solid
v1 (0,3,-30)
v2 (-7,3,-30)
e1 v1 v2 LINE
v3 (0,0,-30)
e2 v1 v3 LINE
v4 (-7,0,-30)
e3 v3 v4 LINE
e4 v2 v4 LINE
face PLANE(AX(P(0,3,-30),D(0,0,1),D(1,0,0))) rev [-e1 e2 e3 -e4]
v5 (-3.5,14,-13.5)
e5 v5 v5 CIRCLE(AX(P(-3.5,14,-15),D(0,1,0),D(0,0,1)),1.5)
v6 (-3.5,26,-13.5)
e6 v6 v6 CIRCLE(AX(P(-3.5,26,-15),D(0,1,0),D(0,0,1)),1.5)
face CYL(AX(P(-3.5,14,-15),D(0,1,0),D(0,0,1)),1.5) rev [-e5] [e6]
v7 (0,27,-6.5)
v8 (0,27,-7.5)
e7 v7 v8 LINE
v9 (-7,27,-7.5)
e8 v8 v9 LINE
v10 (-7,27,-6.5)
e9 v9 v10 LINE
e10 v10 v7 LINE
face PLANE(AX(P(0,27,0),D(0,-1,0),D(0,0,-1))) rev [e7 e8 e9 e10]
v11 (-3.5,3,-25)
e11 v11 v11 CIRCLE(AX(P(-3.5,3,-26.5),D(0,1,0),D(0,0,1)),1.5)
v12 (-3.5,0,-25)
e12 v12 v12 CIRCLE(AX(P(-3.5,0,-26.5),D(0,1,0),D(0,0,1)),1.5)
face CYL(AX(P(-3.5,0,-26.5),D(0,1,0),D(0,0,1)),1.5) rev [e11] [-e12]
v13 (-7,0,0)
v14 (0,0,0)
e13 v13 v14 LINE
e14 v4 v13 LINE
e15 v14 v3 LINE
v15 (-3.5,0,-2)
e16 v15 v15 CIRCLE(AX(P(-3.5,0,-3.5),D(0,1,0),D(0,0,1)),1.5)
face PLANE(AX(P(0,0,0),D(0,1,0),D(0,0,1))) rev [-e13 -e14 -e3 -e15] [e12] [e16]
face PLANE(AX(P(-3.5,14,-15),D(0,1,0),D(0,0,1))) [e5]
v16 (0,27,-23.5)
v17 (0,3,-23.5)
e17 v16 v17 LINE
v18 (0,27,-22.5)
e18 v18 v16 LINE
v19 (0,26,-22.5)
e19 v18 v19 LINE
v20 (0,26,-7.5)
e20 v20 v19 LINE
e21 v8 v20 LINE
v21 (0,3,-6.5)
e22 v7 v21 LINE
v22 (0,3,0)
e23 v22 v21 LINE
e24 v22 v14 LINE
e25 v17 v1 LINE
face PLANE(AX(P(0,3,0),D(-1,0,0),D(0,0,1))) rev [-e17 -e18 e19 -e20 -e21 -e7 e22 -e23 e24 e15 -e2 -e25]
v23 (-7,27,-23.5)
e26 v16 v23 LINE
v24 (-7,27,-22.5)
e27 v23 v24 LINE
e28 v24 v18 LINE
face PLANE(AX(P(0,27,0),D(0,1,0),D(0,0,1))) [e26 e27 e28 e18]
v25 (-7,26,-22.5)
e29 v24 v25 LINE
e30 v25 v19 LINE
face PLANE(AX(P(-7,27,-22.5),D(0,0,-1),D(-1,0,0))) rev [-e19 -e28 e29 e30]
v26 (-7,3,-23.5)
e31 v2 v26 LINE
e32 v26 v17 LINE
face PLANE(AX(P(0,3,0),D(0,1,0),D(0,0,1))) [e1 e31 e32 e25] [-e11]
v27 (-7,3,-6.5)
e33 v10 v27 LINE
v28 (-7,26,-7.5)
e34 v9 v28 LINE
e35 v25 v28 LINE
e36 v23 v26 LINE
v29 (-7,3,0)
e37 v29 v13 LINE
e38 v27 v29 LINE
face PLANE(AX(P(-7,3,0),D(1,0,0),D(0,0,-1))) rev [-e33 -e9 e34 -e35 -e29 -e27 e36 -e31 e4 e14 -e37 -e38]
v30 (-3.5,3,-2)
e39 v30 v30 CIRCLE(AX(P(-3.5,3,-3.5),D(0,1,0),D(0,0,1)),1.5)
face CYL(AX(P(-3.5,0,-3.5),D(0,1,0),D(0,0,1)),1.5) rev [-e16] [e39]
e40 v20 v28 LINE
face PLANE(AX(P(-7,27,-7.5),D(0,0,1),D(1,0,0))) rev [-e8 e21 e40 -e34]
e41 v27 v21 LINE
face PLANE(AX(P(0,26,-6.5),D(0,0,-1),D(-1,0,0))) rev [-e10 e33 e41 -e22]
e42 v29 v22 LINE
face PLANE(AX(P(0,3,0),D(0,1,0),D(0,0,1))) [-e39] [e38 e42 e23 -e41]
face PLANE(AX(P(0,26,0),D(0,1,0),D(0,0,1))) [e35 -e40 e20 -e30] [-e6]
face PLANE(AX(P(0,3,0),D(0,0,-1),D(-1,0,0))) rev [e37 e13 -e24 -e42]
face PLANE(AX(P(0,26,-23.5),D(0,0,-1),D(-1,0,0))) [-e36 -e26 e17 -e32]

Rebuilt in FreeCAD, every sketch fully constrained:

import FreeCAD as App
import Part
import Sketcher

doc = App.newDocument("Part")
params = doc.addObject("Spreadsheet::Sheet", "Params")
for row, (alias, value) in enumerate([
    ("sketch1_width", "7 mm"),
    ("sketch1_height", "30 mm"),
    ("pad1_length", "3 mm"),
    ("sketch2_diameter", "3 mm"),
    ("pocket1_length", "3 mm"),
    ("sketch3_width", "7 mm"),
    ("sketch3_height", "17 mm"),
    ("pad2_length", "23 mm"),
    ("sketch4_diameter", "3 mm"),
    ("pocket2_length", "12 mm"),
    ("sketch5_width", "7 mm"),
    ("sketch5_height", "1 mm"),
    ("pad3_length", "1 mm"),
], start=1):
    params.set(f"A{row}", alias)
    params.set(f"B{row}", "=" + value)
    params.setAlias(f"B{row}", alias)

body = doc.addObject("PartDesign::Body", "Body")

sketch1 = body.newObject("Sketcher::SketchObject", "Sketch")
sketch1.AttachmentSupport = (doc.getObject("XZ_Plane"), [""])
sketch1.MapMode = "FlatFace"
sketch1.addGeometry([
    Part.LineSegment(App.Vector(-7, -30, 0), App.Vector(-7, 0, 0)),
    Part.LineSegment(App.Vector(-7, 0, 0), App.Vector(0, 0, 0)),
    Part.LineSegment(App.Vector(0, 0, 0), App.Vector(0, -30, 0)),
    Part.LineSegment(App.Vector(0, -30, 0), App.Vector(-7, -30, 0)),
], False)
sketch1.addConstraint([
    Sketcher.Constraint("Coincident", 0, 2, 1, 1),
    Sketcher.Constraint("Coincident", 1, 2, 2, 1),
    Sketcher.Constraint("Coincident", 2, 2, 3, 1),
    Sketcher.Constraint("Coincident", 3, 2, 0, 1),
    Sketcher.Constraint("Vertical", 0),
    Sketcher.Constraint("Horizontal", 1),
    Sketcher.Constraint("Vertical", 2),
    Sketcher.Constraint("Horizontal", 3),
    Sketcher.Constraint("Coincident", 1, 2, -1, 1),
    Sketcher.Constraint("DistanceX", 1, 1, 1, 2, 7.0),
    Sketcher.Constraint("DistanceY", 0, 1, 0, 2, 30.0),
])
sketch1.setExpression("Constraints[9]", "Params.sketch1_width")
sketch1.setExpression("Constraints[10]", "Params.sketch1_height")
pad1 = body.newObject("PartDesign::Pad", "Pad")
pad1.Profile = sketch1
pad1.setExpression("Length", "Params.pad1_length")
pad1.Reversed = True

sketch2 = body.newObject("Sketcher::SketchObject", "Sketch001")
sketch2.AttachmentSupport = (doc.getObject("XZ_Plane"), [""])
sketch2.MapMode = "FlatFace"
sketch2.AttachmentOffset = App.Placement(App.Vector(0, 0, -3), App.Rotation())
sketch2.addGeometry([
    Part.Circle(App.Vector(-3.5, -26.5, 0), App.Vector(0, 0, 1), 1.5),
    Part.Circle(App.Vector(-3.5, -3.5, 0), App.Vector(0, 0, 1), 1.5),
], False)
sketch2.addConstraint([
    Sketcher.Constraint("Equal", 0, 1),
    Sketcher.Constraint("Vertical", 0, 3, 1, 3),
    Sketcher.Constraint("Diameter", 0, 3.0),
    Sketcher.Constraint("DistanceY", 0, 3, 1, 3, 23.0),
    Sketcher.Constraint("DistanceX", 0, 3, -1, 1, 3.5),
    Sketcher.Constraint("DistanceY", 0, 3, -1, 1, 26.5),
])
sketch2.setExpression("Constraints[2]", "Params.sketch2_diameter")
pocket1 = body.newObject("PartDesign::Pocket", "Pocket")
pocket1.Profile = sketch2
pocket1.setExpression("Length", "Params.pocket1_length")
pocket1.Reversed = True

sketch3 = body.newObject("Sketcher::SketchObject", "Sketch002")
sketch3.AttachmentSupport = (doc.getObject("XZ_Plane"), [""])
sketch3.MapMode = "FlatFace"
sketch3.AttachmentOffset = App.Placement(App.Vector(0, 0, -3), App.Rotation())
sketch3.addGeometry([
    Part.LineSegment(App.Vector(-7, -24, 0), App.Vector(-7, -6, 0)),
    Part.LineSegment(App.Vector(-7, -6, 0), App.Vector(0, -6, 0)),
    Part.LineSegment(App.Vector(0, -6, 0), App.Vector(0, -24, 0)),
    Part.LineSegment(App.Vector(0, -24, 0), App.Vector(-7, -24, 0)),
], False)
sketch3.addConstraint([
    Sketcher.Constraint("Coincident", 0, 2, 1, 1),
    Sketcher.Constraint("Coincident", 1, 2, 2, 1),
    Sketcher.Constraint("Coincident", 2, 2, 3, 1),
    Sketcher.Constraint("Coincident", 3, 2, 0, 1),
    Sketcher.Constraint("Vertical", 0),
    Sketcher.Constraint("Horizontal", 1),
    Sketcher.Constraint("Vertical", 2),
    Sketcher.Constraint("Horizontal", 3),
    Sketcher.Constraint("PointOnObject", 1, 2, -2),
    Sketcher.Constraint("DistanceX", 1, 1, 1, 2, 7.0),
    Sketcher.Constraint("DistanceY", 0, 1, 0, 2, 17.0),
    Sketcher.Constraint("DistanceY", 0, 2, -1, 1, 6.5),
])
sketch3.setExpression("Constraints[9]", "Params.sketch3_width")
sketch3.setExpression("Constraints[10]", "Params.sketch3_height")
pad2 = body.newObject("PartDesign::Pad", "Pad001")
pad2.Profile = sketch3
pad2.setExpression("Length", "Params.pad2_length")
pad2.Reversed = True

sketch4 = body.newObject("Sketcher::SketchObject", "Sketch003")
sketch4.AttachmentSupport = (doc.getObject("XZ_Plane"), [""])
sketch4.MapMode = "FlatFace"
sketch4.AttachmentOffset = App.Placement(App.Vector(0, 0, -26), App.Rotation())
sketch4.addGeometry(Part.Circle(App.Vector(-3.5, -15, 0), App.Vector(0, 0, 1), 1.5), False)
sketch4.addConstraint([
    Sketcher.Constraint("Diameter", 0, 3.0),
    Sketcher.Constraint("DistanceY", 0, 3, -1, 1, 15.0),
    Sketcher.Constraint("DistanceX", 0, 3, -1, 1, 3.5),
])
sketch4.setExpression("Constraints[0]", "Params.sketch4_diameter")
pocket2 = body.newObject("PartDesign::Pocket", "Pocket001")
pocket2.Profile = sketch4
pocket2.setExpression("Length", "Params.pocket2_length")
pocket2.Reversed = True

sketch5 = body.newObject("Sketcher::SketchObject", "Sketch004")
sketch5.AttachmentSupport = (doc.getObject("XZ_Plane"), [""])
sketch5.MapMode = "FlatFace"
sketch5.AttachmentOffset = App.Placement(App.Vector(0, 0, -26), App.Rotation())
sketch5.addGeometry([
    Part.LineSegment(App.Vector(-7, -23.5, 0), App.Vector(-7, -22.5, 0)),
    Part.LineSegment(App.Vector(-7, -22.5, 0), App.Vector(0, -22.5, 0)),
    Part.LineSegment(App.Vector(0, -22.5, 0), App.Vector(0, -23.5, 0)),
    Part.LineSegment(App.Vector(0, -23.5, 0), App.Vector(-7, -23.5, 0)),
    Part.LineSegment(App.Vector(-7, -7.5, 0), App.Vector(-7, -6.5, 0)),
    Part.LineSegment(App.Vector(-7, -6.5, 0), App.Vector(0, -6.5, 0)),
    Part.LineSegment(App.Vector(0, -6.5, 0), App.Vector(0, -7.5, 0)),
    Part.LineSegment(App.Vector(0, -7.5, 0), App.Vector(-7, -7.5, 0)),
], False)
sketch5.addConstraint([
    Sketcher.Constraint("Coincident", 0, 2, 1, 1),
    Sketcher.Constraint("Coincident", 1, 2, 2, 1),
    Sketcher.Constraint("Coincident", 2, 2, 3, 1),
    Sketcher.Constraint("Coincident", 3, 2, 0, 1),
    Sketcher.Constraint("Coincident", 4, 2, 5, 1),
    Sketcher.Constraint("Coincident", 5, 2, 6, 1),
    Sketcher.Constraint("Coincident", 6, 2, 7, 1),
    Sketcher.Constraint("Coincident", 7, 2, 4, 1),
    Sketcher.Constraint("Vertical", 0),
    Sketcher.Constraint("Horizontal", 1),
    Sketcher.Constraint("Vertical", 2),
    Sketcher.Constraint("Horizontal", 3),
    Sketcher.Constraint("Vertical", 4),
    Sketcher.Constraint("Horizontal", 5),
    Sketcher.Constraint("Vertical", 6),
    Sketcher.Constraint("Horizontal", 7),
    Sketcher.Constraint("PointOnObject", 1, 2, -2),
    Sketcher.Constraint("PointOnObject", 5, 2, -2),
    Sketcher.Constraint("Vertical", 3, 2, 4, 2),
    Sketcher.Constraint("Equal", 2, 4),
    Sketcher.Constraint("DistanceX", 1, 1, 1, 2, 7.0),
    Sketcher.Constraint("DistanceY", 0, 1, 0, 2, 1.0),
    Sketcher.Constraint("DistanceY", 0, 2, 4, 2, 16.0),
    Sketcher.Constraint("DistanceY", 0, 2, -1, 1, 22.5),
])
sketch5.setExpression("Constraints[20]", "Params.sketch5_width")
sketch5.setExpression("Constraints[21]", "Params.sketch5_height")
pad3 = body.newObject("PartDesign::Pad", "Pad002")
pad3.Profile = sketch5
pad3.setExpression("Length", "Params.pad3_length")
pad3.Reversed = True

doc.recompute()
